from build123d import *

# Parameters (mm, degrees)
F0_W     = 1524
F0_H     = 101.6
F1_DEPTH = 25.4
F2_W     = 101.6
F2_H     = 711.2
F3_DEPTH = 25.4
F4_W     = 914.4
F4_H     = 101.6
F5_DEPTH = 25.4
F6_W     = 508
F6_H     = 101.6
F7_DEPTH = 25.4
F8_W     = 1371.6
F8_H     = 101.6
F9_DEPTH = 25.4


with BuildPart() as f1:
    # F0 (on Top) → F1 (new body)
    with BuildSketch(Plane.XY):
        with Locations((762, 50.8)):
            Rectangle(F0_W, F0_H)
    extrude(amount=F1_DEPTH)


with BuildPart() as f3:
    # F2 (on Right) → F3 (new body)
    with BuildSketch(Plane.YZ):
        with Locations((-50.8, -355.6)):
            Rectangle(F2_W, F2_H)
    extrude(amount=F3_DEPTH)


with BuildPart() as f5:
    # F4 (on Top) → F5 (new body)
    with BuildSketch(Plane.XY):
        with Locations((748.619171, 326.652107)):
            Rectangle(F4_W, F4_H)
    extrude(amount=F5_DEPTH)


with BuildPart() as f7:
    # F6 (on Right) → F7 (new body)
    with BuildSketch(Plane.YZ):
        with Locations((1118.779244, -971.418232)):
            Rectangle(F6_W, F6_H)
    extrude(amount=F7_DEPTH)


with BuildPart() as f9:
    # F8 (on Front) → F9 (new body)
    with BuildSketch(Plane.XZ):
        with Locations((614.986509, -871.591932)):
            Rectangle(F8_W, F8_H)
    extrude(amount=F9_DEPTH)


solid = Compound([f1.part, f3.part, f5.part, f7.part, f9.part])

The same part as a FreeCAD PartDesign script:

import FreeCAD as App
import Part
import Sketcher

V = App.Vector
Q = App.Units.Quantity


def add_polygon(sketch, points):
    """Adds a closed chain of lines whose ends are joined by coincident constraints."""
    first, n = sketch.GeometryCount, len(points)
    for a, b in zip(points, points[1:] + points[:1]):
        sketch.addGeometry(Part.LineSegment(App.Vector(*a, 0), App.Vector(*b, 0)), False)
    for i in range(n):
        sketch.addConstraint(Sketcher.Constraint("Coincident", first + i, 2, first + (i + 1) % n, 1))

doc = App.newDocument("Part")
body = doc.addObject("PartDesign::Body", "Body")

sketch1 = body.newObject("Sketcher::SketchObject", "Sketch")
sketch1.AttachmentSupport = (doc.getObject("XY_Plane"), [""])
sketch1.MapMode = "FlatFace"
add_polygon(sketch1, [(0, 101.6), (0, 0), (1524, 0), (1524, 101.6)])
sketch1.addConstraint(Sketcher.Constraint("Vertical", 0))
sketch1.addConstraint(Sketcher.Constraint("Horizontal", 1))
sketch1.addConstraint(Sketcher.Constraint("Vertical", 2))
sketch1.addConstraint(Sketcher.Constraint("Horizontal", 3))
sketch1.addConstraint(Sketcher.Constraint("Coincident", 0, 2, -1, 1))
sketch1.addConstraint(Sketcher.Constraint("DistanceX", 1, 1, 1, 2, Q("60 in")))
sketch1.addConstraint(Sketcher.Constraint("DistanceY", 0, 2, 0, 1, Q("4 in")))
pad1 = body.newObject("PartDesign::Pad", "Pad")
pad1.Profile = sketch1
pad1.Length = Q("1 in")
body2 = doc.addObject("PartDesign::Body", "Body001")

sketch2 = body2.newObject("Sketcher::SketchObject", "Sketch001")
sketch2.AttachmentSupport = (doc.getObject("YZ_Plane001"), [""])
sketch2.MapMode = "FlatFace"
add_polygon(sketch2, [(-101.6, 0), (-101.6, -711.2), (0, -711.2), (0, 0)])
sketch2.addConstraint(Sketcher.Constraint("Vertical", 0))
sketch2.addConstraint(Sketcher.Constraint("Horizontal", 1))
sketch2.addConstraint(Sketcher.Constraint("Vertical", 2))
sketch2.addConstraint(Sketcher.Constraint("Horizontal", 3))
sketch2.addConstraint(Sketcher.Constraint("Coincident", 2, 2, -1, 1))
sketch2.addConstraint(Sketcher.Constraint("DistanceX", 1, 1, 1, 2, Q("4 in")))
sketch2.addConstraint(Sketcher.Constraint("DistanceY", 0, 2, 0, 1, Q("28 in")))
pad2 = body2.newObject("PartDesign::Pad", "Pad001")
pad2.Profile = sketch2
pad2.Length = Q("1 in")
body3 = doc.addObject("PartDesign::Body", "Body002")

sketch3 = body3.newObject("Sketcher::SketchObject", "Sketch002")
sketch3.AttachmentSupport = (doc.getObject("XY_Plane002"), [""])
sketch3.MapMode = "FlatFace"
add_polygon(sketch3, [(291.419171, 377.452107), (291.419171, 275.852107), (1205.819171, 275.852107), (1205.819171, 377.452107)])
sketch3.addConstraint(Sketcher.Constraint("Vertical", 0))
sketch3.addConstraint(Sketcher.Constraint("Horizontal", 1))
sketch3.addConstraint(Sketcher.Constraint("Vertical", 2))
sketch3.addConstraint(Sketcher.Constraint("Horizontal", 3))
sketch3.addConstraint(Sketcher.Constraint("DistanceX", 1, 1, 1, 2, Q("36 in")))
sketch3.addConstraint(Sketcher.Constraint("DistanceY", 0, 2, 0, 1, Q("4 in")))
sketch3.addConstraint(Sketcher.Constraint("DistanceX", -1, 1, 0, 2, Q("291.419171 mm")))
sketch3.addConstraint(Sketcher.Constraint("DistanceY", -1, 1, 0, 2, Q("275.852107 mm")))
pad3 = body3.newObject("PartDesign::Pad", "Pad002")
pad3.Profile = sketch3
pad3.Length = Q("1 in")
body4 = doc.addObject("PartDesign::Body", "Body003")

sketch4 = body4.newObject("Sketcher::SketchObject", "Sketch003")
sketch4.AttachmentSupport = (doc.getObject("YZ_Plane003"), [""])
sketch4.MapMode = "FlatFace"
add_polygon(sketch4, [(864.779244, -920.618232), (864.779244, -1022.218232), (1372.779244, -1022.218232), (1372.779244, -920.618232)])
sketch4.addConstraint(Sketcher.Constraint("Vertical", 0))
sketch4.addConstraint(Sketcher.Constraint("Horizontal", 1))
sketch4.addConstraint(Sketcher.Constraint("Vertical", 2))
sketch4.addConstraint(Sketcher.Constraint("Horizontal", 3))
sketch4.addConstraint(Sketcher.Constraint("DistanceX", 1, 1, 1, 2, Q("20 in")))
sketch4.addConstraint(Sketcher.Constraint("DistanceY", 0, 2, 0, 1, Q("4 in")))
sketch4.addConstraint(Sketcher.Constraint("DistanceY", 0, 2, -1, 1, Q("1022.218232 mm")))
sketch4.addConstraint(Sketcher.Constraint("DistanceX", -1, 1, 0, 2, Q("864.779244 mm")))
pad4 = body4.newObject("PartDesign::Pad", "Pad003")
pad4.Profile = sketch4
pad4.Length = Q("1 in")
body5 = doc.addObject("PartDesign::Body", "Body004")

sketch5 = body5.newObject("Sketcher::SketchObject", "Sketch004")
sketch5.AttachmentSupport = (doc.getObject("XZ_Plane004"), [""])
sketch5.MapMode = "FlatFace"
add_polygon(sketch5, [(-70.813491, -820.791932), (-70.813491, -922.391932), (1300.786509, -922.391932), (1300.786509, -820.791932)])
sketch5.addConstraint(Sketcher.Constraint("Vertical", 0))
sketch5.addConstraint(Sketcher.Constraint("Horizontal", 1))
sketch5.addConstraint(Sketcher.Constraint("Vertical", 2))
sketch5.addConstraint(Sketcher.Constraint("Horizontal", 3))
sketch5.addConstraint(Sketcher.Constraint("DistanceX", 1, 1, 1, 2, Q("54 in")))
sketch5.addConstraint(Sketcher.Constraint("DistanceY", 0, 2, 0, 1, Q("4 in")))
sketch5.addConstraint(Sketcher.Constraint("DistanceX", 0, 2, -1, 1, Q("70.813491 mm")))
sketch5.addConstraint(Sketcher.Constraint("DistanceY", 0, 2, -1, 1, Q("922.391932 mm")))
pad5 = body5.newObject("PartDesign::Pad", "Pad004")
pad5.Profile = sketch5
pad5.Length = Q("1 in")

doc.recompute()
